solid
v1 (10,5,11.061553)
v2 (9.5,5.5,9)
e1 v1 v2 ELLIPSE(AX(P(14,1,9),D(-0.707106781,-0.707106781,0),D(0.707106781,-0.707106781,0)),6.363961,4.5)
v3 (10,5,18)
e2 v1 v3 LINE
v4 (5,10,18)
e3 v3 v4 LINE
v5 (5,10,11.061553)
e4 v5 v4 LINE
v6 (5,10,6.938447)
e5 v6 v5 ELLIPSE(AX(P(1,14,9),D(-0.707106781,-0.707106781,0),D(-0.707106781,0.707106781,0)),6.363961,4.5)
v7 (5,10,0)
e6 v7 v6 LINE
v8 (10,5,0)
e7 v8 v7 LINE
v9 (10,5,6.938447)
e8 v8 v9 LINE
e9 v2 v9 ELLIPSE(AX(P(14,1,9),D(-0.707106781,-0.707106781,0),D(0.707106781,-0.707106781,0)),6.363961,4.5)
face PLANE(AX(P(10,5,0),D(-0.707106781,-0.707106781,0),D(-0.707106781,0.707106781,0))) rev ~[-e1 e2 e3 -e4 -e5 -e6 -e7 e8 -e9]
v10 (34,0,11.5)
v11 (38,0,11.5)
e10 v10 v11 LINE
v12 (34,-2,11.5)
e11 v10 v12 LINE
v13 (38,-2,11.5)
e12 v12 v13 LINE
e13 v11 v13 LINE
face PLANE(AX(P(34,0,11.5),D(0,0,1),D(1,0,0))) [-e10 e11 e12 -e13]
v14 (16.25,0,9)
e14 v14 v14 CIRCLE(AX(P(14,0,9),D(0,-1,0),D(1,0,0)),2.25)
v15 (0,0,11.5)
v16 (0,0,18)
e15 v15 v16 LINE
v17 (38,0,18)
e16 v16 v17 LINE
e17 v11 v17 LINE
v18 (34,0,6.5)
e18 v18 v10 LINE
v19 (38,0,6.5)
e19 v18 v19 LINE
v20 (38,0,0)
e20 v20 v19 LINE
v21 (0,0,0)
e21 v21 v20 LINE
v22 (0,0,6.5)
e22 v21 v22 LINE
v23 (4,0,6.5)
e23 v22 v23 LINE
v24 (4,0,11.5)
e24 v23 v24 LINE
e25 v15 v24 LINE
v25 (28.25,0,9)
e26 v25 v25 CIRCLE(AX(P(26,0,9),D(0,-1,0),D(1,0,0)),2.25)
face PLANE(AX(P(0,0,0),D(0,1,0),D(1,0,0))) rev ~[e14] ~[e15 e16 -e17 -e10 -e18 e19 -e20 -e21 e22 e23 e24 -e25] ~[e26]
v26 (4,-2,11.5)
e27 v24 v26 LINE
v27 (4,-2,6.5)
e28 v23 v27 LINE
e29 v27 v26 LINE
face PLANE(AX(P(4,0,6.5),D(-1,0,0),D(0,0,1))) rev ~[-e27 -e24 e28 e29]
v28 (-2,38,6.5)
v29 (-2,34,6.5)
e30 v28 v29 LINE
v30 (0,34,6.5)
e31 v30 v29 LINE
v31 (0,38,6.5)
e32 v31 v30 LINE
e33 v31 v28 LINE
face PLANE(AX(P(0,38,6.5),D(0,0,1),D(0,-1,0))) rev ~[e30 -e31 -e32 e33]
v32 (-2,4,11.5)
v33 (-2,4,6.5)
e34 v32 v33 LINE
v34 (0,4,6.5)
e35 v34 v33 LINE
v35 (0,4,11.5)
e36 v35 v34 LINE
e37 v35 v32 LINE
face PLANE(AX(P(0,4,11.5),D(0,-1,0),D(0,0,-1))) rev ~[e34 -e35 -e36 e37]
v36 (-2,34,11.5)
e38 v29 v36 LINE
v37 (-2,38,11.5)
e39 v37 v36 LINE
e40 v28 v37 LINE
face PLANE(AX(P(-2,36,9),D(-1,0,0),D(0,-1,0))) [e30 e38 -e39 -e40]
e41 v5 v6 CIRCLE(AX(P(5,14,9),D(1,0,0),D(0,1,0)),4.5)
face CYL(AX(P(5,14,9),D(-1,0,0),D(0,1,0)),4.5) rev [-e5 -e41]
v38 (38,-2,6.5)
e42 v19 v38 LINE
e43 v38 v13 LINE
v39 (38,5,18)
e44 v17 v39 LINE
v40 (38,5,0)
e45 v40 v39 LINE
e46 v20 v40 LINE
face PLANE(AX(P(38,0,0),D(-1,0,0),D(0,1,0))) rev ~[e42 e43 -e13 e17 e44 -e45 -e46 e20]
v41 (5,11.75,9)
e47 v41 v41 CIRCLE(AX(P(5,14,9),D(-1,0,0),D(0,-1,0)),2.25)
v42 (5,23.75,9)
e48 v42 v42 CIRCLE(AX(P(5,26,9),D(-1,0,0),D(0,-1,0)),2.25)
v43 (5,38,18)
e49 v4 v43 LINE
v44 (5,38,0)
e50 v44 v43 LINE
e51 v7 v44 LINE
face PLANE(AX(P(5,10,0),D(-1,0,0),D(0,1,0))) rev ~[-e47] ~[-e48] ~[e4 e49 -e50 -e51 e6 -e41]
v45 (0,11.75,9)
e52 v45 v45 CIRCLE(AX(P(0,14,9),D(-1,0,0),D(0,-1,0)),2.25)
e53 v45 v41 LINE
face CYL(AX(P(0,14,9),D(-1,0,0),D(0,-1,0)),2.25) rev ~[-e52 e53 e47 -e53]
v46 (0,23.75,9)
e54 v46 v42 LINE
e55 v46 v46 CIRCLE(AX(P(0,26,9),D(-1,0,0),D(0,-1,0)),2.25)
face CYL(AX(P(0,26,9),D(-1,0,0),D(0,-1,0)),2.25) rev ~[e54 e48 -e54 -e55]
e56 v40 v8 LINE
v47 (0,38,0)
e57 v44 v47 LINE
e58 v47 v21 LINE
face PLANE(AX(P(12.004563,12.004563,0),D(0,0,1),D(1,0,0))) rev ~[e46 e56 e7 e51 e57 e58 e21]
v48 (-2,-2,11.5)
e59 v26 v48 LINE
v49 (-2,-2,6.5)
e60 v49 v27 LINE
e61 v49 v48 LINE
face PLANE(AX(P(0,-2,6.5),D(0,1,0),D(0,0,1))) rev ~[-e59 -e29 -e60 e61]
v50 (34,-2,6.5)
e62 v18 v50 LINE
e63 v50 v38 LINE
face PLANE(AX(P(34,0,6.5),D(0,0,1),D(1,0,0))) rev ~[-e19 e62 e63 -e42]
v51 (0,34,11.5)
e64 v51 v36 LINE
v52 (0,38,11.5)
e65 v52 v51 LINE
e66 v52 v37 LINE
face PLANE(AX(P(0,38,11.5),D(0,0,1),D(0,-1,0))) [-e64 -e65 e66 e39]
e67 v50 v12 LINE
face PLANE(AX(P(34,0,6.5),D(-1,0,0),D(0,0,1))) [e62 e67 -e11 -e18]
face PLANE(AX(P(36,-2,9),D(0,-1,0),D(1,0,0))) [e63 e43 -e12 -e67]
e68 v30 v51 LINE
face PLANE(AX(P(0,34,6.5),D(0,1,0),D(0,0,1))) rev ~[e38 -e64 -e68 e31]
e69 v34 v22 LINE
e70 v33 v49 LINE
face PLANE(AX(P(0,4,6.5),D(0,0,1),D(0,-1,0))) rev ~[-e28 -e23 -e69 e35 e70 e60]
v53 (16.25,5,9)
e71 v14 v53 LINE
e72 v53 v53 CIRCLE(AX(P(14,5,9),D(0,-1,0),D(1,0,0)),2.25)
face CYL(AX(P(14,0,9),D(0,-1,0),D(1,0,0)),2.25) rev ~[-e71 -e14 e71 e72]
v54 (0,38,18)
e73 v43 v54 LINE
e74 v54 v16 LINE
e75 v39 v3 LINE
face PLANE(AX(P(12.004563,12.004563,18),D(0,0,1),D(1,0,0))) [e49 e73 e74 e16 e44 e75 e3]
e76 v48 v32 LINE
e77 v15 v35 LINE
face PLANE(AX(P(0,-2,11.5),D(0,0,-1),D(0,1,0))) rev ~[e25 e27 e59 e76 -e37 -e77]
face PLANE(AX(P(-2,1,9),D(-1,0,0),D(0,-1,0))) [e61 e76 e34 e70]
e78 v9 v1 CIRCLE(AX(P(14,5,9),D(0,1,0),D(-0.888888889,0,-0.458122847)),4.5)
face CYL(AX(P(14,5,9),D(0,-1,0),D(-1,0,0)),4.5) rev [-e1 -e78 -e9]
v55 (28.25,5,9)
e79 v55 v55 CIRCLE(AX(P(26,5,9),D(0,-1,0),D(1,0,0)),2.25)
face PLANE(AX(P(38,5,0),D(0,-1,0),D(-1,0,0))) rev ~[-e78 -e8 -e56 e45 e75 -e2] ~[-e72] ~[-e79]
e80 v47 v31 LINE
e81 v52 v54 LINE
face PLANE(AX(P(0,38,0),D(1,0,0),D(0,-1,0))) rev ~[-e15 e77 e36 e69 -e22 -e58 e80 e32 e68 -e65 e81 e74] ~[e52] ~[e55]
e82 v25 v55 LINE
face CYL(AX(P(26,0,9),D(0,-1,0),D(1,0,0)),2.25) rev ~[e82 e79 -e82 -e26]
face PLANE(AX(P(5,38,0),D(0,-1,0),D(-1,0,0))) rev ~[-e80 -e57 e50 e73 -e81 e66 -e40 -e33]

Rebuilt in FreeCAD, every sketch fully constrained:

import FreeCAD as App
import Part
import Sketcher

V = App.Vector

doc = App.newDocument("Part")
body = doc.addObject("PartDesign::Body", "Body")

sketch1 = body.newObject("Sketcher::SketchObject", "Sketch")
sketch1.AttachmentSupport = (doc.getObject("XY_Plane"), [""])
sketch1.MapMode = "FlatFace"
sketch1.addGeometry([
    Part.LineSegment(V(0, 38, 0), V(0, 0, 0)),
    Part.LineSegment(V(0, 0, 0), V(38, 0, 0)),
    Part.LineSegment(V(38, 0, 0), V(38, 5, 0)),
    Part.LineSegment(V(38, 5, 0), V(10, 5, 0)),
    Part.LineSegment(V(10, 5, 0), V(5, 10, 0)),
    Part.LineSegment(V(5, 10, 0), V(5, 38, 0)),
    Part.LineSegment(V(5, 38, 0), V(0, 38, 0)),
], False)
sketch1.addConstraint([
    Sketcher.Constraint("Coincident", 0, 2, 1, 1),
    Sketcher.Constraint("Coincident", 1, 2, 2, 1),
    Sketcher.Constraint("Coincident", 2, 2, 3, 1),
    Sketcher.Constraint("Coincident", 3, 2, 4, 1),
    Sketcher.Constraint("Coincident", 4, 2, 5, 1),
    Sketcher.Constraint("Coincident", 5, 2, 6, 1),
    Sketcher.Constraint("Coincident", 6, 2, 0, 1),
    Sketcher.Constraint("Vertical", 0),
    Sketcher.Constraint("Horizontal", 1),
    Sketcher.Constraint("Vertical", 2),
    Sketcher.Constraint("Horizontal", 3),
    Sketcher.Constraint("Vertical", 5),
    Sketcher.Constraint("Horizontal", 6),
    Sketcher.Constraint("Coincident", 0, 2, -1, 1),
    Sketcher.Constraint("Equal", 1, 0),
    Sketcher.Constraint("Equal", 6, 2),
    Sketcher.Constraint("Equal", 3, 5),
    Sketcher.Constraint("DistanceX", 1, 1, 1, 2, 38.0),
    Sketcher.Constraint("DistanceX", 3, 2, 3, 1, 28.0),
    Sketcher.Constraint("DistanceX", 6, 2, 6, 1, 5.0),
])
pad1 = body.newObject("PartDesign::Pad", "Pad")
pad1.Profile = sketch1
pad1.Length = 18

sketch2 = body.newObject("Sketcher::SketchObject", "Sketch001")
sketch2.AttachmentSupport = (doc.getObject("XZ_Plane"), [""])
sketch2.MapMode = "FlatFace"
sketch2.addGeometry([
    Part.LineSegment(V(0, 11.5, 0), V(0, 6.5, 0)),
    Part.LineSegment(V(0, 6.5, 0), V(4, 6.5, 0)),
    Part.LineSegment(V(4, 6.5, 0), V(4, 11.5, 0)),
    Part.LineSegment(V(4, 11.5, 0), V(0, 11.5, 0)),
    Part.LineSegment(V(34, 11.5, 0), V(34, 6.5, 0)),
    Part.LineSegment(V(34, 6.5, 0), V(38, 6.5, 0)),
    Part.LineSegment(V(38, 6.5, 0), V(38, 11.5, 0)),
    Part.LineSegment(V(38, 11.5, 0), V(34, 11.5, 0)),
], False)
sketch2.addConstraint([
    Sketcher.Constraint("Coincident", 0, 2, 1, 1),
    Sketcher.Constraint("Coincident", 1, 2, 2, 1),
    Sketcher.Constraint("Coincident", 2, 2, 3, 1),
    Sketcher.Constraint("Coincident", 3, 2, 0, 1),
    Sketcher.Constraint("Coincident", 4, 2, 5, 1),
    Sketcher.Constraint("Coincident", 5, 2, 6, 1),
    Sketcher.Constraint("Coincident", 6, 2, 7, 1),
    Sketcher.Constraint("Coincident", 7, 2, 4, 1),
    Sketcher.Constraint("Vertical", 0),
    Sketcher.Constraint("Horizontal", 1),
    Sketcher.Constraint("Vertical", 2),
    Sketcher.Constraint("Horizontal", 3),
    Sketcher.Constraint("Vertical", 4),
    Sketcher.Constraint("Horizontal", 5),
    Sketcher.Constraint("Vertical", 6),
    Sketcher.Constraint("Horizontal", 7),
    Sketcher.Constraint("PointOnObject", 0, 2, -2),
    Sketcher.Constraint("Horizontal", 1, 2, 4, 2),
    Sketcher.Constraint("Horizontal", 3, 2, 6, 2),
    Sketcher.Constraint("Equal", 3, 5),
    Sketcher.Constraint("DistanceX", 1, 1, 1, 2, 4.0),
    Sketcher.Constraint("DistanceY", 0, 2, 0, 1, 5.0),
    Sketcher.Constraint("DistanceX", -1, 1, 4, 2, 34.0),
    Sketcher.Constraint("DistanceY", -1, 1, 0, 2, 6.5),
])
pad2 = body.newObject("PartDesign::Pad", "Pad001")
pad2.Profile = sketch2
pad2.Length = 2

sketch3 = body.newObject("Sketcher::SketchObject", "Sketch002")
sketch3.AttachmentSupport = (doc.getObject("XZ_Plane"), [""])
sketch3.MapMode = "FlatFace"
sketch3.addGeometry([
    Part.Circle(V(14, 9, 0), V(0, 0, 1), 2.2),
    Part.Circle(V(26, 9, 0), V(0, 0, 1), 2.2),
], False)
sketch3.addConstraint([
    Sketcher.Constraint("Equal", 0, 1),
    Sketcher.Constraint("Horizontal", 0, 3, 1, 3),
    Sketcher.Constraint("Diameter", 0, 4.5),
    Sketcher.Constraint("DistanceX", -1, 1, 0, 3, 14.0),
    Sketcher.Constraint("DistanceY", -1, 1, 0, 3, 9.0),
    Sketcher.Constraint("DistanceX", -1, 1, 1, 3, 26.0),
])
pocket1 = body.newObject("PartDesign::Pocket", "Pocket")
pocket1.Profile = sketch3
pocket1.Length = 25

sketch4 = body.newObject("Sketcher::SketchObject", "Sketch003")
sketch4.AttachmentSupport = (doc.getObject("XZ_Plane"), [""])
sketch4.MapMode = "FlatFace"
sketch4.AttachmentOffset = App.Placement(V(0, 0, -5), App.Rotation())
sketch4.addGeometry(Part.Circle(V(14, 9, 0), V(0, 0, 1), 4.5), False)
sketch4.addConstraint([
    Sketcher.Constraint("Diameter", 0, 9.0),
    Sketcher.Constraint("DistanceX", -1, 1, 0, 3, 14.0),
    Sketcher.Constraint("DistanceY", -1, 1, 0, 3, 9.0),
])
pocket2 = body.newObject("PartDesign::Pocket", "Pocket001")
pocket2.Profile = sketch4
pocket2.Length = 25

sketch5 = body.newObject("Sketcher::SketchObject", "Sketch004")
sketch5.AttachmentSupport = (doc.getObject("YZ_Plane"), [""])
sketch5.MapMode = "FlatFace"
sketch5.addGeometry([
    Part.Circle(V(14, 9, 0), V(0, 0, 1), 2.2),
    Part.Circle(V(26, 9, 0), V(0, 0, 1), 2.2),
], False)
sketch5.addConstraint([
    Sketcher.Constraint("Equal", 0, 1),
    Sketcher.Constraint("Horizontal", 0, 3, 1, 3),
    Sketcher.Constraint("Diameter", 0, 4.5),
    Sketcher.Constraint("DistanceX", -1, 1, 0, 3, 14.0),
    Sketcher.Constraint("DistanceY", -1, 1, 0, 3, 9.0),
    Sketcher.Constraint("DistanceX", -1, 1, 1, 3, 26.0),
])
pocket3 = body.newObject("PartDesign::Pocket", "Pocket002")
pocket3.Profile = sketch5
pocket3.Length = 25
pocket3.Reversed = True

sketch6 = body.newObject("Sketcher::SketchObject", "Sketch005")
sketch6.AttachmentSupport = (doc.getObject("YZ_Plane"), [""])
sketch6.MapMode = "FlatFace"
sketch6.addGeometry([
    Part.LineSegment(V(-2, 6.5, 0), V(-2, 11.5, 0)),
    Part.LineSegment(V(-2, 11.5, 0), V(4, 11.5, 0)),
    Part.LineSegment(V(4, 11.5, 0), V(4, 6.5, 0)),
    Part.LineSegment(V(4, 6.5, 0), V(-2, 6.5, 0)),
    Part.LineSegment(V(38, 11.5, 0), V(38, 6.5, 0)),
    Part.LineSegment(V(38, 6.5, 0), V(34, 6.5, 0)),
    Part.LineSegment(V(34, 6.5, 0), V(34, 11.5, 0)),
    Part.LineSegment(V(34, 11.5, 0), V(38, 11.5, 0)),
], False)
sketch6.addConstraint([
    Sketcher.Constraint("Coincident", 0, 2, 1, 1),
    Sketcher.Constraint("Coincident", 1, 2, 2, 1),
    Sketcher.Constraint("Coincident", 2, 2, 3, 1),
    Sketcher.Constraint("Coincident", 3, 2, 0, 1),
    Sketcher.Constraint("Coincident", 4, 2, 5, 1),
    Sketcher.Constraint("Coincident", 5, 2, 6, 1),
    Sketcher.Constraint("Coincident", 6, 2, 7, 1),
    Sketcher.Constraint("Coincident", 7, 2, 4, 1),
    Sketcher.Constraint("Vertical", 0),
    Sketcher.Constraint("Horizontal", 1),
    Sketcher.Constraint("Vertical", 2),
    Sketcher.Constraint("Horizontal", 3),
    Sketcher.Constraint("Vertical", 4),
    Sketcher.Constraint("Horizontal", 5),
    Sketcher.Constraint("Vertical", 6),
    Sketcher.Constraint("Horizontal", 7),
    Sketcher.Constraint("Horizontal", 3, 2, 4, 2),
    Sketcher.Constraint("Horizontal", 1, 2, 6, 2),
    Sketcher.Constraint("DistanceX", 1, 1, 1, 2, 6.0),
    Sketcher.Constraint("DistanceX", 5, 2, 5, 1, 4.0),
    Sketcher.Constraint("DistanceY", 0, 1, 0, 2, 5.0),
    Sketcher.Constraint("DistanceX", 0, 2, -1, 1, 2.0),
    Sketcher.Constraint("DistanceX", -1, 1, 4, 2, 38.0),
    Sketcher.Constraint("DistanceY", -1, 1, 0, 2, 11.5),
])
pad3 = body.newObject("PartDesign::Pad", "Pad002")
pad3.Profile = sketch6
pad3.Length = 2
pad3.Reversed = True

sketch7 = body.newObject("Sketcher::SketchObject", "Sketch006")
sketch7.AttachmentSupport = (doc.getObject("YZ_Plane"), [""])
sketch7.MapMode = "FlatFace"
sketch7.AttachmentOffset = App.Placement(V(0, 0, 5), App.Rotation())
sketch7.addGeometry(Part.Circle(V(14, 9, 0), V(0, 0, 1), 4.5), False)
sketch7.addConstraint([
    Sketcher.Constraint("Diameter", 0, 9.0),
    Sketcher.Constraint("DistanceX", -1, 1, 0, 3, 14.0),
    Sketcher.Constraint("DistanceY", -1, 1, 0, 3, 9.0),
])
pocket4 = body.newObject("PartDesign::Pocket", "Pocket003")
pocket4.Profile = sketch7
pocket4.Length = 25
pocket4.Reversed = True

doc.recompute()
